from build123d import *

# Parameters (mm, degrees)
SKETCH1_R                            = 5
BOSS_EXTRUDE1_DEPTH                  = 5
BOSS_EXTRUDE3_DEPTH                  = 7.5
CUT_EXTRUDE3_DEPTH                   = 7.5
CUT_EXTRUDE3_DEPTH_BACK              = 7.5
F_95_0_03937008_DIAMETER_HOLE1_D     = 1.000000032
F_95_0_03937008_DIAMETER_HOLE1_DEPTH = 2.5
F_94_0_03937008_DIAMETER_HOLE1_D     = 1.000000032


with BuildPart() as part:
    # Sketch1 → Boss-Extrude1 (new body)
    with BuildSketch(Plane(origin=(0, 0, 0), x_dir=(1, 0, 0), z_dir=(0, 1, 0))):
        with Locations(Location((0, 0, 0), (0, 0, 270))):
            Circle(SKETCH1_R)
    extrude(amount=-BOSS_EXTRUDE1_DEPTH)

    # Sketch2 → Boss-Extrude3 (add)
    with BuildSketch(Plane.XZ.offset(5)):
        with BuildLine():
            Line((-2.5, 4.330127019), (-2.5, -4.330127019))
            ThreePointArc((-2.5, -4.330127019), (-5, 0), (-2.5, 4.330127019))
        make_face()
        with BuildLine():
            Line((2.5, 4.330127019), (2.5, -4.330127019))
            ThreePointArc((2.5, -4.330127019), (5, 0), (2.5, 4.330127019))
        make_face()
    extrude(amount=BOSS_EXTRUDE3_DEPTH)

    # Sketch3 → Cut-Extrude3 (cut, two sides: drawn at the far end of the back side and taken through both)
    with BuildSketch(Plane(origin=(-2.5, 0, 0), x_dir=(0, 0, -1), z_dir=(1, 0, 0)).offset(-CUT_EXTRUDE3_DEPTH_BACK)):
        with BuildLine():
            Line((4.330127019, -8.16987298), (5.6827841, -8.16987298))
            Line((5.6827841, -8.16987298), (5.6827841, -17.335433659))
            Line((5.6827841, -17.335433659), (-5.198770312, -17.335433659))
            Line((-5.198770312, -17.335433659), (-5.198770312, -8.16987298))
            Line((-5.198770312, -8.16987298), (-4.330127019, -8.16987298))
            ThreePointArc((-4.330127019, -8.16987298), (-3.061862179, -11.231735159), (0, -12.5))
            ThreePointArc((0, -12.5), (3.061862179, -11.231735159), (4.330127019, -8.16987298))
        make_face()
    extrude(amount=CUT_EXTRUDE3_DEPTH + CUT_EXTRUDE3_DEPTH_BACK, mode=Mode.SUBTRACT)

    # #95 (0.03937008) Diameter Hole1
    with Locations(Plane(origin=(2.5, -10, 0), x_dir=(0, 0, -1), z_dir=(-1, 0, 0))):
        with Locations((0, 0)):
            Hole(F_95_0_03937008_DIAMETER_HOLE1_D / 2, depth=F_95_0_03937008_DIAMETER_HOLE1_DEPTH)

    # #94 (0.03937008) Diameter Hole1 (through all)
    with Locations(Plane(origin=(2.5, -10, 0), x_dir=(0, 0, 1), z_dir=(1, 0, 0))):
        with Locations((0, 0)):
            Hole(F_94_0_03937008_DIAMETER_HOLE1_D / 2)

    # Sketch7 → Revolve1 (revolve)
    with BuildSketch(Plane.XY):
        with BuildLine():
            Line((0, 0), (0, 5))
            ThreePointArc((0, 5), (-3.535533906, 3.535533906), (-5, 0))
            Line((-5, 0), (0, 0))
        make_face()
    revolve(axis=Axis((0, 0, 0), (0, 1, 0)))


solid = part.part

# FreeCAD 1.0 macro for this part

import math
import FreeCAD as App
import Part
import Sketcher

doc = App.newDocument("Part")
body = doc.addObject("PartDesign::Body", "Body")

sketch1 = body.newObject("Sketcher::SketchObject", "Sketch")
sketch1.AttachmentSupport = (doc.getObject("XZ_Plane"), [""])
sketch1.MapMode = "FlatFace"
sketch1.addGeometry(Part.Circle(App.Vector(0, 0, 0), App.Vector(0, 0, 1), 5), False)
sketch1.addConstraint(Sketcher.Constraint("Coincident", 0, 3, -1, 1))
sketch1.addConstraint(Sketcher.Constraint("Diameter", 0, 10.0))
pad1 = body.newObject("PartDesign::Pad", "Pad")
pad1.Profile = sketch1
pad1.Length = 5

sketch2 = body.newObject("Sketcher::SketchObject", "Sketch001")
sketch2.AttachmentSupport = (doc.getObject("XZ_Plane"), [""])
sketch2.MapMode = "FlatFace"
sketch2.AttachmentOffset = App.Placement(App.Vector(0, 0, 5), App.Rotation())
sketch2.addGeometry(Part.LineSegment(App.Vector(-2, -4, 0), App.Vector(-2, 4, 0)), False)
sketch2.addGeometry(Part.ArcOfCircle(Part.Circle(App.Vector(0, 0, 0), App.Vector(0, 0, 1), 5), math.radians(120), math.radians(240)), False)
sketch2.addGeometry(Part.LineSegment(App.Vector(2, 4, 0), App.Vector(2, -4, 0)), False)
sketch2.addGeometry(Part.ArcOfCircle(Part.Circle(App.Vector(0, 0, 0), App.Vector(0, 0, 1), 5), math.radians(-60), math.radians(60)), False)
sketch2.addConstraint(Sketcher.Constraint("Coincident", 0, 1, 1, 2))
sketch2.addConstraint(Sketcher.Constraint("Coincident", 1, 1, 0, 2))
sketch2.addConstraint(Sketcher.Constraint("Coincident", 2, 1, 3, 2))
sketch2.addConstraint(Sketcher.Constraint("Coincident", 3, 1, 2, 2))
sketch2.addConstraint(Sketcher.Constraint("Vertical", 0))
sketch2.addConstraint(Sketcher.Constraint("Vertical", 2))
sketch2.addConstraint(Sketcher.Constraint("Coincident", 1, 3, -1, 1))
sketch2.addConstraint(Sketcher.Constraint("Coincident", 3, 3, -1, 1))
sketch2.addConstraint(Sketcher.Constraint("Equal", 1, 3))
sketch2.addConstraint(Sketcher.Constraint("Horizontal", 1, 1, 2, 1))
sketch2.addConstraint(Sketcher.Constraint("Radius", 1, 5.0))
sketch2.addConstraint(Sketcher.Constraint("DistanceX", 1, 1, 2, 1, 5.0))
pad2 = body.newObject("PartDesign::Pad", "Pad001")
pad2.Profile = sketch2
pad2.Length = 7.5

sketch3 = body.newObject("Sketcher::SketchObject", "Sketch002")
sketch3.AttachmentSupport = (doc.getObject("YZ_Plane"), [""])
sketch3.MapMode = "FlatFace"
sketch3.AttachmentOffset = App.Placement(App.Vector(0, 0, -2.5), App.Rotation())
sketch3.addGeometry(Part.LineSegment(App.Vector(-8.2, -5.7, 0), App.Vector(-8.2, -4.3, 0)), False)
sketch3.addGeometry(Part.ArcOfCircle(Part.Circle(App.Vector(-8.2, 0, 0), App.Vector(0, 0, 1), 4.3), math.radians(180), math.radians(270)), False)
sketch3.addGeometry(Part.ArcOfCircle(Part.Circle(App.Vector(-8.2, 0, 0), App.Vector(0, 0, 1), 4.3), math.radians(90), math.radians(180)), False)
sketch3.addGeometry(Part.LineSegment(App.Vector(-8.2, 4.3, 0), App.Vector(-8.2, 5.2, 0)), False)
sketch3.addGeometry(Part.LineSegment(App.Vector(-8.2, 5.2, 0), App.Vector(-17.3, 5.2, 0)), False)
sketch3.addGeometry(Part.LineSegment(App.Vector(-17.3, 5.2, 0), App.Vector(-17.3, -5.7, 0)), False)
sketch3.addGeometry(Part.LineSegment(App.Vector(-17.3, -5.7, 0), App.Vector(-8.2, -5.7, 0)), False)
sketch3.addConstraint(Sketcher.Constraint("Coincident", 0, 2, 1, 2))
sketch3.addConstraint(Sketcher.Constraint("Tangent", 1, 1, 2, 2))
sketch3.addConstraint(Sketcher.Constraint("Coincident", 2, 1, 3, 1))
sketch3.addConstraint(Sketcher.Constraint("Coincident", 3, 2, 4, 1))
sketch3.addConstraint(Sketcher.Constraint("Coincident", 4, 2, 5, 1))
sketch3.addConstraint(Sketcher.Constraint("Coincident", 5, 2, 6, 1))
sketch3.addConstraint(Sketcher.Constraint("Coincident", 6, 2, 0, 1))
sketch3.addConstraint(Sketcher.Constraint("Vertical", 0))
sketch3.addConstraint(Sketcher.Constraint("Vertical", 3))
sketch3.addConstraint(Sketcher.Constraint("Horizontal", 4))
sketch3.addConstraint(Sketcher.Constraint("Vertical", 5))
sketch3.addConstraint(Sketcher.Constraint("Horizontal", 6))
sketch3.addConstraint(Sketcher.Constraint("Equal", 1, 2))
sketch3.addConstraint(Sketcher.Constraint("Symmetric", 0, 2, 2, 1, -1))
sketch3.addConstraint(Sketcher.Constraint("PointOnObject", 1, 1, -1))
sketch3.addConstraint(Sketcher.Constraint("Vertical", 2, 3, 0, 2))
sketch3.addConstraint(Sketcher.Constraint("DistanceX", 1, 1, -1, 1, 12.5))
sketch3.addConstraint(Sketcher.Constraint("Radius", 1, 4.330127))
sketch3.addConstraint(Sketcher.Constraint("DistanceX", 4, 2, 4, 1, 9.165561))
sketch3.addConstraint(Sketcher.Constraint("DistanceY", 0, 1, 0, 2, 1.352657))
sketch3.addConstraint(Sketcher.Constraint("DistanceY", 3, 1, 3, 2, 0.868643))
pocket1 = body.newObject("PartDesign::Pocket", "Pocket")
pocket1.Profile = sketch3
pocket1.Type = "ThroughAll"
pocket1.Midplane = True

sketch4 = body.newObject("Sketcher::SketchObject", "Sketch003")
sketch4.AttachmentSupport = (doc.getObject("YZ_Plane"), [""])
sketch4.MapMode = "FlatFace"
sketch4.AttachmentOffset = App.Placement(App.Vector(0, 0, 2.5), App.Rotation())
sketch4.addGeometry(Part.Circle(App.Vector(-10, 0, 0), App.Vector(0, 0, 1), 0.5), False)
sketch4.addConstraint(Sketcher.Constraint("PointOnObject", 0, 3, -1))
sketch4.addConstraint(Sketcher.Constraint("Diameter", 0, 1.0))
sketch4.addConstraint(Sketcher.Constraint("DistanceX", 0, 3, -1, 1, 10.0))
doc.recompute()
hole = body.newObject("PartDesign::Hole", "Hole")
hole.Profile = sketch4
hole.ThreadType = "None"
hole.Diameter = 1
hole.DepthType = "Dimension"
hole.Depth = 2.5
hole.DrillPoint = "Flat"
hole.Reversed = True

sketch5 = body.newObject("Sketcher::SketchObject", "Sketch004")
sketch5.AttachmentSupport = (doc.getObject("YZ_Plane"), [""])
sketch5.MapMode = "FlatFace"
sketch5.AttachmentOffset = App.Placement(App.Vector(0, 0, 2.5), App.Rotation())
sketch5.addGeometry(Part.Circle(App.Vector(-10, 0, 0), App.Vector(0, 0, 1), 0.5), False)
sketch5.addConstraint(Sketcher.Constraint("PointOnObject", 0, 3, -1))
sketch5.addConstraint(Sketcher.Constraint("Diameter", 0, 1.0))
sketch5.addConstraint(Sketcher.Constraint("DistanceX", 0, 3, -1, 1, 10.0))
doc.recompute()
hole2 = body.newObject("PartDesign::Hole", "Hole001")
hole2.Profile = sketch5
hole2.ThreadType = "None"
hole2.Diameter = 1
hole2.DepthType = "ThroughAll"

sketch6 = body.newObject("Sketcher::SketchObject", "Sketch005")
sketch6.AttachmentSupport = (doc.getObject("XY_Plane"), [""])
sketch6.MapMode = "FlatFace"
sketch6.addGeometry(Part.LineSegment(App.Vector(0, 0, 0), App.Vector(0, 5, 0)), False)
sketch6.addGeometry(Part.ArcOfCircle(Part.Circle(App.Vector(0, 0, 0), App.Vector(0, 0, 1), 5), math.radians(90), math.radians(180)), False)
sketch6.addGeometry(Part.LineSegment(App.Vector(-5, 0, 0), App.Vector(0, 0, 0)), False)
sketch6.addConstraint(Sketcher.Constraint("Coincident", 0, 2, 1, 1))
sketch6.addConstraint(Sketcher.Constraint("Coincident", 1, 2, 2, 1))
sketch6.addConstraint(Sketcher.Constraint("Coincident", 2, 2, 0, 1))
sketch6.addConstraint(Sketcher.Constraint("Vertical", 0))
sketch6.addConstraint(Sketcher.Constraint("Horizontal", 2))
sketch6.addConstraint(Sketcher.Constraint("Coincident", 1, 3, -1, 1))
sketch6.addConstraint(Sketcher.Constraint("Coincident", 2, 2, -1, 1))
sketch6.addConstraint(Sketcher.Constraint("Radius", 1, 5.0))
revolution = body.newObject("PartDesign::Revolution", "Revolution")
revolution.Profile = sketch6
revolution.ReferenceAxis = (sketch6, ["V_Axis"])
revolution.Angle = 360

doc.recompute()
